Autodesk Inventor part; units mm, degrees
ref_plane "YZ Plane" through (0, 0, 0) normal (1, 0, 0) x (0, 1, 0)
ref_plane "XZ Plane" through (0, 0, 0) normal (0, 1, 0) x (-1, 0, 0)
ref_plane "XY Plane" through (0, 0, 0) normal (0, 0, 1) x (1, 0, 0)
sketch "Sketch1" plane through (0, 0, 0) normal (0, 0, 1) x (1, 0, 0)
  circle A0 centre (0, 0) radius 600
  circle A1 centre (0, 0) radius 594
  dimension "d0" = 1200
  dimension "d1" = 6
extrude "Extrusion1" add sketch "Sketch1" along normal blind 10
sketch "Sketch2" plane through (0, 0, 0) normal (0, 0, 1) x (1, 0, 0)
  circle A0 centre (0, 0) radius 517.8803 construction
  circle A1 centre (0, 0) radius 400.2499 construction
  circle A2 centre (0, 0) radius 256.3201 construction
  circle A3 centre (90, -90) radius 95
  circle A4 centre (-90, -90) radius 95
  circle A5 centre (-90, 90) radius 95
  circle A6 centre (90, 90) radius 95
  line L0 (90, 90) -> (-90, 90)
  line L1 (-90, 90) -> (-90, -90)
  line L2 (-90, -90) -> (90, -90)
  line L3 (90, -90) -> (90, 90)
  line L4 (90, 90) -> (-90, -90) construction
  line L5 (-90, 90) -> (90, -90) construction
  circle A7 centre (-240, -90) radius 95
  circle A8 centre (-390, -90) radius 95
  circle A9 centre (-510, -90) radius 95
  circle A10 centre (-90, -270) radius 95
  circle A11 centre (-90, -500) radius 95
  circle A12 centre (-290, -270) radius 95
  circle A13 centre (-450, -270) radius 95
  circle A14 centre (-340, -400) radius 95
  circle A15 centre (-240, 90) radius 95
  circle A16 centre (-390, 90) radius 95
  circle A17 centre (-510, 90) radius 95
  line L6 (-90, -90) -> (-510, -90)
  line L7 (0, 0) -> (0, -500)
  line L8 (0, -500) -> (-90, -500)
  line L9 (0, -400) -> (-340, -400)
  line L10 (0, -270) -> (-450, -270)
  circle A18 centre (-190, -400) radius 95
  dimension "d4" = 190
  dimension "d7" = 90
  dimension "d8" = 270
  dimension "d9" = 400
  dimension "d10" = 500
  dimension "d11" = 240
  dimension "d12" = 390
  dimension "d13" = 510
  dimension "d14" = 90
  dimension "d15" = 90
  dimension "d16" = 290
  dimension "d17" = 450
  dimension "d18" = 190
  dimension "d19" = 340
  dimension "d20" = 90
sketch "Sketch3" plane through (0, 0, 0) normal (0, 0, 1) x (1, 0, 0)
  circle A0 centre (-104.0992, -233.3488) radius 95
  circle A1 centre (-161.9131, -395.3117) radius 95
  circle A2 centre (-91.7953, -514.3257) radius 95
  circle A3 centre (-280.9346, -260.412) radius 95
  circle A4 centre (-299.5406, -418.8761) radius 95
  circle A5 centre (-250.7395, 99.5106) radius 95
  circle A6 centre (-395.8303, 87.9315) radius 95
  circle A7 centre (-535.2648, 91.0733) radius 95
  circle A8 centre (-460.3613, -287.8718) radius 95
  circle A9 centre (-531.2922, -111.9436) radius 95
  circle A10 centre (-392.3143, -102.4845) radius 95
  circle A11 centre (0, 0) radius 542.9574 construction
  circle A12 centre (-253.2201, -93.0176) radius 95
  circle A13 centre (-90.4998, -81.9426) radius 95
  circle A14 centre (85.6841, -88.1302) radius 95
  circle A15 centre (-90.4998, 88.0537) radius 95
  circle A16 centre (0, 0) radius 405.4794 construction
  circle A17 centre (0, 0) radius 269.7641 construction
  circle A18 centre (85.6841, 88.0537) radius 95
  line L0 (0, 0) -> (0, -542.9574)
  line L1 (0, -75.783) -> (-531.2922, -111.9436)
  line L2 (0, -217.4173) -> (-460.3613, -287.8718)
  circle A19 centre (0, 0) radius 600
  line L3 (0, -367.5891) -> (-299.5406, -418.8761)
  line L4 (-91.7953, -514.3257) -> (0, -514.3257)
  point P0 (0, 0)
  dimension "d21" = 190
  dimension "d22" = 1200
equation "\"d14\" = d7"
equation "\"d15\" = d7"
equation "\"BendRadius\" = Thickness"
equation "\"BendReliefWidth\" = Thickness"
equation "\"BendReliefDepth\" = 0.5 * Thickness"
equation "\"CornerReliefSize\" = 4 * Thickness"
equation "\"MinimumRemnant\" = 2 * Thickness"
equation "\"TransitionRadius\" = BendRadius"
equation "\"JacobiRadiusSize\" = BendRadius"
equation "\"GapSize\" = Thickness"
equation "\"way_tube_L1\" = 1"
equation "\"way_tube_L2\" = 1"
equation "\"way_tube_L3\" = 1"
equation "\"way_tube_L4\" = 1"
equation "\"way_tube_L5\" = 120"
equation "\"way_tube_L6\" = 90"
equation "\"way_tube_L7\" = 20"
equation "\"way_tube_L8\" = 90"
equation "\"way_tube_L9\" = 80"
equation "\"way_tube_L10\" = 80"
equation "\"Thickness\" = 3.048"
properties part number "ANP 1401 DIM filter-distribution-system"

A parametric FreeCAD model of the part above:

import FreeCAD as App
import Part
import Sketcher

V = App.Vector

doc = App.newDocument("Part")
body = doc.addObject("PartDesign::Body", "Body")

# Sketch on XY plane
sketch1 = body.newObject("Sketcher::SketchObject", "Sketch")
sketch1.AttachmentSupport = (doc.getObject("XY_Plane"), [""])
sketch1.MapMode = "FlatFace"
sketch1.addGeometry([
    Part.Circle(V(0, 0, 0), V(0, 0, 1), 600),
    Part.Circle(V(0, 0, 0), V(0, 0, 1), 594),
], False)
sketch1.addConstraint([
    Sketcher.Constraint("Coincident", 0, 3, -1, 1),
    Sketcher.Constraint("Coincident", 1, 3, -1, 1),
    Sketcher.Constraint("Diameter", 0, 1200.0),
    Sketcher.Constraint("Diameter", 1, 1188.0),
])
pad1 = body.newObject("PartDesign::Pad", "Pad")
pad1.Profile = sketch1
pad1.Length = 10

doc.recompute()
